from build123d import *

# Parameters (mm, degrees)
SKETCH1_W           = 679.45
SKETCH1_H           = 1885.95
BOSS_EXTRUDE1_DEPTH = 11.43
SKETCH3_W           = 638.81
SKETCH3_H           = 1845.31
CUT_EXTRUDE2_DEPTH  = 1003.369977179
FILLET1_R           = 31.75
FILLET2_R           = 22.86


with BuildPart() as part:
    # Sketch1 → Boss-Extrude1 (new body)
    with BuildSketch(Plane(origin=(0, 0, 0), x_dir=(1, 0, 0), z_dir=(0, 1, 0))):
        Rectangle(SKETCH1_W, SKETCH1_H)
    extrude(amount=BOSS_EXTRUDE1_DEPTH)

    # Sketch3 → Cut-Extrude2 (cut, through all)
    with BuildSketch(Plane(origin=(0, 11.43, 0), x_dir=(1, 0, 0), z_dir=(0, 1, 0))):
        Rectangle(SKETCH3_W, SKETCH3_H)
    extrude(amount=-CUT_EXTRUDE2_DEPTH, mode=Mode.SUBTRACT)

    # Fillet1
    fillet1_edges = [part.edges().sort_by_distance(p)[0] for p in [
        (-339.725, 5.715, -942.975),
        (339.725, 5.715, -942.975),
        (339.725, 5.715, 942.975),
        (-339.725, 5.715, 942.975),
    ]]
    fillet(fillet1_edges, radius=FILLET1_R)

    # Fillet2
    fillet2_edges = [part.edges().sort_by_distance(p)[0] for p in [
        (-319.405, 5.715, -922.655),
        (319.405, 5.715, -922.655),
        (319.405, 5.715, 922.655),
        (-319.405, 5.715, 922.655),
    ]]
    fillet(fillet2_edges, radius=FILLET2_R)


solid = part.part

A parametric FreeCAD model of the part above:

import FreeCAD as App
import Part
import Sketcher
from FreeCAD import Vector
Q = App.Units.Quantity


def edges_at(feature, points):
    """Names of the edges that pass closest to the given points."""
    edges = feature.Shape.Edges
    near = lambda p: min(range(len(edges)), key=lambda i: edges[i].distToShape(Part.Vertex(*p))[0])
    return sorted({f"Edge{near(p) + 1}" for p in points})

doc = App.newDocument("Part")
body = doc.addObject("PartDesign::Body", "Body")

sketch1 = body.newObject("Sketcher::SketchObject", "Sketch")
sketch1.AttachmentSupport = (doc.getObject("XZ_Plane"), [""])
sketch1.MapMode = "FlatFace"
sketch1.addGeometry(Part.LineSegment(Vector(-339.725, -942.975, 0), Vector(-339.725, 942.975, 0)), False)
sketch1.addGeometry(Part.LineSegment(Vector(-339.725, 942.975, 0), Vector(339.725, 942.975, 0)), False)
sketch1.addGeometry(Part.LineSegment(Vector(339.725, 942.975, 0), Vector(339.725, -942.975, 0)), False)
sketch1.addGeometry(Part.LineSegment(Vector(339.725, -942.975, 0), Vector(-339.725, -942.975, 0)), False)
sketch1.addConstraint(Sketcher.Constraint("Coincident", 0, 2, 1, 1))
sketch1.addConstraint(Sketcher.Constraint("Coincident", 1, 2, 2, 1))
sketch1.addConstraint(Sketcher.Constraint("Coincident", 2, 2, 3, 1))
sketch1.addConstraint(Sketcher.Constraint("Coincident", 3, 2, 0, 1))
sketch1.addConstraint(Sketcher.Constraint("Vertical", 0))
sketch1.addConstraint(Sketcher.Constraint("Horizontal", 1))
sketch1.addConstraint(Sketcher.Constraint("Vertical", 2))
sketch1.addConstraint(Sketcher.Constraint("Horizontal", 3))
sketch1.addConstraint(Sketcher.Constraint("Symmetric", 0, 2, 2, 2, -1, 1))
sketch1.addConstraint(Sketcher.Constraint("DistanceX", 1, 1, 1, 2, Q("26.75 in")))
sketch1.addConstraint(Sketcher.Constraint("DistanceY", 0, 1, 0, 2, Q("74.25 in")))
pad1 = body.newObject("PartDesign::Pad", "Pad")
pad1.Profile = sketch1
pad1.Length = Q("0.45 in")
pad1.Reversed = True

sketch2 = body.newObject("Sketcher::SketchObject", "Sketch001")
sketch2.AttachmentSupport = (doc.getObject("XZ_Plane"), [""])
sketch2.MapMode = "FlatFace"
sketch2.AttachmentOffset = App.Placement(Vector(0, 0, -0.45 * 25.4), App.Rotation())
sketch2.addGeometry(Part.LineSegment(Vector(-319.405, -922.655, 0), Vector(-319.405, 922.655, 0)), False)
sketch2.addGeometry(Part.LineSegment(Vector(-319.405, 922.655, 0), Vector(319.405, 922.655, 0)), False)
sketch2.addGeometry(Part.LineSegment(Vector(319.405, 922.655, 0), Vector(319.405, -922.655, 0)), False)
sketch2.addGeometry(Part.LineSegment(Vector(319.405, -922.655, 0), Vector(-319.405, -922.655, 0)), False)
sketch2.addConstraint(Sketcher.Constraint("Coincident", 0, 2, 1, 1))
sketch2.addConstraint(Sketcher.Constraint("Coincident", 1, 2, 2, 1))
sketch2.addConstraint(Sketcher.Constraint("Coincident", 2, 2, 3, 1))
sketch2.addConstraint(Sketcher.Constraint("Coincident", 3, 2, 0, 1))
sketch2.addConstraint(Sketcher.Constraint("Vertical", 0))
sketch2.addConstraint(Sketcher.Constraint("Horizontal", 1))
sketch2.addConstraint(Sketcher.Constraint("Vertical", 2))
sketch2.addConstraint(Sketcher.Constraint("Horizontal", 3))
sketch2.addConstraint(Sketcher.Constraint("Symmetric", 0, 2, 2, 2, -1, 1))
sketch2.addConstraint(Sketcher.Constraint("DistanceX", 1, 1, 1, 2, Q("25.15 in")))
sketch2.addConstraint(Sketcher.Constraint("DistanceY", 0, 1, 0, 2, Q("72.65 in")))
pocket1 = body.newObject("PartDesign::Pocket", "Pocket")
pocket1.Profile = sketch2
pocket1.Type = "ThroughAll"
pocket1.Reversed = True
doc.recompute()

fillet = body.newObject("PartDesign::Fillet", "Fillet")
fillet.Base = (pocket1, edges_at(pocket1, [
    (-339.725, 5.715, -942.975),
    (339.725, 5.715, -942.975),
    (339.725, 5.715, 942.975),
    (-339.725, 5.715, 942.975),
]))
fillet.Radius = Q("1.25 in")
doc.recompute()

fillet2 = body.newObject("PartDesign::Fillet", "Fillet001")
fillet2.Base = (fillet, edges_at(fillet, [
    (-319.405, 5.715, -922.655),
    (319.405, 5.715, -922.655),
    (319.405, 5.715, 922.655),
    (-319.405, 5.715, 922.655),
]))
fillet2.Radius = Q("0.9 in")

doc.recompute()
